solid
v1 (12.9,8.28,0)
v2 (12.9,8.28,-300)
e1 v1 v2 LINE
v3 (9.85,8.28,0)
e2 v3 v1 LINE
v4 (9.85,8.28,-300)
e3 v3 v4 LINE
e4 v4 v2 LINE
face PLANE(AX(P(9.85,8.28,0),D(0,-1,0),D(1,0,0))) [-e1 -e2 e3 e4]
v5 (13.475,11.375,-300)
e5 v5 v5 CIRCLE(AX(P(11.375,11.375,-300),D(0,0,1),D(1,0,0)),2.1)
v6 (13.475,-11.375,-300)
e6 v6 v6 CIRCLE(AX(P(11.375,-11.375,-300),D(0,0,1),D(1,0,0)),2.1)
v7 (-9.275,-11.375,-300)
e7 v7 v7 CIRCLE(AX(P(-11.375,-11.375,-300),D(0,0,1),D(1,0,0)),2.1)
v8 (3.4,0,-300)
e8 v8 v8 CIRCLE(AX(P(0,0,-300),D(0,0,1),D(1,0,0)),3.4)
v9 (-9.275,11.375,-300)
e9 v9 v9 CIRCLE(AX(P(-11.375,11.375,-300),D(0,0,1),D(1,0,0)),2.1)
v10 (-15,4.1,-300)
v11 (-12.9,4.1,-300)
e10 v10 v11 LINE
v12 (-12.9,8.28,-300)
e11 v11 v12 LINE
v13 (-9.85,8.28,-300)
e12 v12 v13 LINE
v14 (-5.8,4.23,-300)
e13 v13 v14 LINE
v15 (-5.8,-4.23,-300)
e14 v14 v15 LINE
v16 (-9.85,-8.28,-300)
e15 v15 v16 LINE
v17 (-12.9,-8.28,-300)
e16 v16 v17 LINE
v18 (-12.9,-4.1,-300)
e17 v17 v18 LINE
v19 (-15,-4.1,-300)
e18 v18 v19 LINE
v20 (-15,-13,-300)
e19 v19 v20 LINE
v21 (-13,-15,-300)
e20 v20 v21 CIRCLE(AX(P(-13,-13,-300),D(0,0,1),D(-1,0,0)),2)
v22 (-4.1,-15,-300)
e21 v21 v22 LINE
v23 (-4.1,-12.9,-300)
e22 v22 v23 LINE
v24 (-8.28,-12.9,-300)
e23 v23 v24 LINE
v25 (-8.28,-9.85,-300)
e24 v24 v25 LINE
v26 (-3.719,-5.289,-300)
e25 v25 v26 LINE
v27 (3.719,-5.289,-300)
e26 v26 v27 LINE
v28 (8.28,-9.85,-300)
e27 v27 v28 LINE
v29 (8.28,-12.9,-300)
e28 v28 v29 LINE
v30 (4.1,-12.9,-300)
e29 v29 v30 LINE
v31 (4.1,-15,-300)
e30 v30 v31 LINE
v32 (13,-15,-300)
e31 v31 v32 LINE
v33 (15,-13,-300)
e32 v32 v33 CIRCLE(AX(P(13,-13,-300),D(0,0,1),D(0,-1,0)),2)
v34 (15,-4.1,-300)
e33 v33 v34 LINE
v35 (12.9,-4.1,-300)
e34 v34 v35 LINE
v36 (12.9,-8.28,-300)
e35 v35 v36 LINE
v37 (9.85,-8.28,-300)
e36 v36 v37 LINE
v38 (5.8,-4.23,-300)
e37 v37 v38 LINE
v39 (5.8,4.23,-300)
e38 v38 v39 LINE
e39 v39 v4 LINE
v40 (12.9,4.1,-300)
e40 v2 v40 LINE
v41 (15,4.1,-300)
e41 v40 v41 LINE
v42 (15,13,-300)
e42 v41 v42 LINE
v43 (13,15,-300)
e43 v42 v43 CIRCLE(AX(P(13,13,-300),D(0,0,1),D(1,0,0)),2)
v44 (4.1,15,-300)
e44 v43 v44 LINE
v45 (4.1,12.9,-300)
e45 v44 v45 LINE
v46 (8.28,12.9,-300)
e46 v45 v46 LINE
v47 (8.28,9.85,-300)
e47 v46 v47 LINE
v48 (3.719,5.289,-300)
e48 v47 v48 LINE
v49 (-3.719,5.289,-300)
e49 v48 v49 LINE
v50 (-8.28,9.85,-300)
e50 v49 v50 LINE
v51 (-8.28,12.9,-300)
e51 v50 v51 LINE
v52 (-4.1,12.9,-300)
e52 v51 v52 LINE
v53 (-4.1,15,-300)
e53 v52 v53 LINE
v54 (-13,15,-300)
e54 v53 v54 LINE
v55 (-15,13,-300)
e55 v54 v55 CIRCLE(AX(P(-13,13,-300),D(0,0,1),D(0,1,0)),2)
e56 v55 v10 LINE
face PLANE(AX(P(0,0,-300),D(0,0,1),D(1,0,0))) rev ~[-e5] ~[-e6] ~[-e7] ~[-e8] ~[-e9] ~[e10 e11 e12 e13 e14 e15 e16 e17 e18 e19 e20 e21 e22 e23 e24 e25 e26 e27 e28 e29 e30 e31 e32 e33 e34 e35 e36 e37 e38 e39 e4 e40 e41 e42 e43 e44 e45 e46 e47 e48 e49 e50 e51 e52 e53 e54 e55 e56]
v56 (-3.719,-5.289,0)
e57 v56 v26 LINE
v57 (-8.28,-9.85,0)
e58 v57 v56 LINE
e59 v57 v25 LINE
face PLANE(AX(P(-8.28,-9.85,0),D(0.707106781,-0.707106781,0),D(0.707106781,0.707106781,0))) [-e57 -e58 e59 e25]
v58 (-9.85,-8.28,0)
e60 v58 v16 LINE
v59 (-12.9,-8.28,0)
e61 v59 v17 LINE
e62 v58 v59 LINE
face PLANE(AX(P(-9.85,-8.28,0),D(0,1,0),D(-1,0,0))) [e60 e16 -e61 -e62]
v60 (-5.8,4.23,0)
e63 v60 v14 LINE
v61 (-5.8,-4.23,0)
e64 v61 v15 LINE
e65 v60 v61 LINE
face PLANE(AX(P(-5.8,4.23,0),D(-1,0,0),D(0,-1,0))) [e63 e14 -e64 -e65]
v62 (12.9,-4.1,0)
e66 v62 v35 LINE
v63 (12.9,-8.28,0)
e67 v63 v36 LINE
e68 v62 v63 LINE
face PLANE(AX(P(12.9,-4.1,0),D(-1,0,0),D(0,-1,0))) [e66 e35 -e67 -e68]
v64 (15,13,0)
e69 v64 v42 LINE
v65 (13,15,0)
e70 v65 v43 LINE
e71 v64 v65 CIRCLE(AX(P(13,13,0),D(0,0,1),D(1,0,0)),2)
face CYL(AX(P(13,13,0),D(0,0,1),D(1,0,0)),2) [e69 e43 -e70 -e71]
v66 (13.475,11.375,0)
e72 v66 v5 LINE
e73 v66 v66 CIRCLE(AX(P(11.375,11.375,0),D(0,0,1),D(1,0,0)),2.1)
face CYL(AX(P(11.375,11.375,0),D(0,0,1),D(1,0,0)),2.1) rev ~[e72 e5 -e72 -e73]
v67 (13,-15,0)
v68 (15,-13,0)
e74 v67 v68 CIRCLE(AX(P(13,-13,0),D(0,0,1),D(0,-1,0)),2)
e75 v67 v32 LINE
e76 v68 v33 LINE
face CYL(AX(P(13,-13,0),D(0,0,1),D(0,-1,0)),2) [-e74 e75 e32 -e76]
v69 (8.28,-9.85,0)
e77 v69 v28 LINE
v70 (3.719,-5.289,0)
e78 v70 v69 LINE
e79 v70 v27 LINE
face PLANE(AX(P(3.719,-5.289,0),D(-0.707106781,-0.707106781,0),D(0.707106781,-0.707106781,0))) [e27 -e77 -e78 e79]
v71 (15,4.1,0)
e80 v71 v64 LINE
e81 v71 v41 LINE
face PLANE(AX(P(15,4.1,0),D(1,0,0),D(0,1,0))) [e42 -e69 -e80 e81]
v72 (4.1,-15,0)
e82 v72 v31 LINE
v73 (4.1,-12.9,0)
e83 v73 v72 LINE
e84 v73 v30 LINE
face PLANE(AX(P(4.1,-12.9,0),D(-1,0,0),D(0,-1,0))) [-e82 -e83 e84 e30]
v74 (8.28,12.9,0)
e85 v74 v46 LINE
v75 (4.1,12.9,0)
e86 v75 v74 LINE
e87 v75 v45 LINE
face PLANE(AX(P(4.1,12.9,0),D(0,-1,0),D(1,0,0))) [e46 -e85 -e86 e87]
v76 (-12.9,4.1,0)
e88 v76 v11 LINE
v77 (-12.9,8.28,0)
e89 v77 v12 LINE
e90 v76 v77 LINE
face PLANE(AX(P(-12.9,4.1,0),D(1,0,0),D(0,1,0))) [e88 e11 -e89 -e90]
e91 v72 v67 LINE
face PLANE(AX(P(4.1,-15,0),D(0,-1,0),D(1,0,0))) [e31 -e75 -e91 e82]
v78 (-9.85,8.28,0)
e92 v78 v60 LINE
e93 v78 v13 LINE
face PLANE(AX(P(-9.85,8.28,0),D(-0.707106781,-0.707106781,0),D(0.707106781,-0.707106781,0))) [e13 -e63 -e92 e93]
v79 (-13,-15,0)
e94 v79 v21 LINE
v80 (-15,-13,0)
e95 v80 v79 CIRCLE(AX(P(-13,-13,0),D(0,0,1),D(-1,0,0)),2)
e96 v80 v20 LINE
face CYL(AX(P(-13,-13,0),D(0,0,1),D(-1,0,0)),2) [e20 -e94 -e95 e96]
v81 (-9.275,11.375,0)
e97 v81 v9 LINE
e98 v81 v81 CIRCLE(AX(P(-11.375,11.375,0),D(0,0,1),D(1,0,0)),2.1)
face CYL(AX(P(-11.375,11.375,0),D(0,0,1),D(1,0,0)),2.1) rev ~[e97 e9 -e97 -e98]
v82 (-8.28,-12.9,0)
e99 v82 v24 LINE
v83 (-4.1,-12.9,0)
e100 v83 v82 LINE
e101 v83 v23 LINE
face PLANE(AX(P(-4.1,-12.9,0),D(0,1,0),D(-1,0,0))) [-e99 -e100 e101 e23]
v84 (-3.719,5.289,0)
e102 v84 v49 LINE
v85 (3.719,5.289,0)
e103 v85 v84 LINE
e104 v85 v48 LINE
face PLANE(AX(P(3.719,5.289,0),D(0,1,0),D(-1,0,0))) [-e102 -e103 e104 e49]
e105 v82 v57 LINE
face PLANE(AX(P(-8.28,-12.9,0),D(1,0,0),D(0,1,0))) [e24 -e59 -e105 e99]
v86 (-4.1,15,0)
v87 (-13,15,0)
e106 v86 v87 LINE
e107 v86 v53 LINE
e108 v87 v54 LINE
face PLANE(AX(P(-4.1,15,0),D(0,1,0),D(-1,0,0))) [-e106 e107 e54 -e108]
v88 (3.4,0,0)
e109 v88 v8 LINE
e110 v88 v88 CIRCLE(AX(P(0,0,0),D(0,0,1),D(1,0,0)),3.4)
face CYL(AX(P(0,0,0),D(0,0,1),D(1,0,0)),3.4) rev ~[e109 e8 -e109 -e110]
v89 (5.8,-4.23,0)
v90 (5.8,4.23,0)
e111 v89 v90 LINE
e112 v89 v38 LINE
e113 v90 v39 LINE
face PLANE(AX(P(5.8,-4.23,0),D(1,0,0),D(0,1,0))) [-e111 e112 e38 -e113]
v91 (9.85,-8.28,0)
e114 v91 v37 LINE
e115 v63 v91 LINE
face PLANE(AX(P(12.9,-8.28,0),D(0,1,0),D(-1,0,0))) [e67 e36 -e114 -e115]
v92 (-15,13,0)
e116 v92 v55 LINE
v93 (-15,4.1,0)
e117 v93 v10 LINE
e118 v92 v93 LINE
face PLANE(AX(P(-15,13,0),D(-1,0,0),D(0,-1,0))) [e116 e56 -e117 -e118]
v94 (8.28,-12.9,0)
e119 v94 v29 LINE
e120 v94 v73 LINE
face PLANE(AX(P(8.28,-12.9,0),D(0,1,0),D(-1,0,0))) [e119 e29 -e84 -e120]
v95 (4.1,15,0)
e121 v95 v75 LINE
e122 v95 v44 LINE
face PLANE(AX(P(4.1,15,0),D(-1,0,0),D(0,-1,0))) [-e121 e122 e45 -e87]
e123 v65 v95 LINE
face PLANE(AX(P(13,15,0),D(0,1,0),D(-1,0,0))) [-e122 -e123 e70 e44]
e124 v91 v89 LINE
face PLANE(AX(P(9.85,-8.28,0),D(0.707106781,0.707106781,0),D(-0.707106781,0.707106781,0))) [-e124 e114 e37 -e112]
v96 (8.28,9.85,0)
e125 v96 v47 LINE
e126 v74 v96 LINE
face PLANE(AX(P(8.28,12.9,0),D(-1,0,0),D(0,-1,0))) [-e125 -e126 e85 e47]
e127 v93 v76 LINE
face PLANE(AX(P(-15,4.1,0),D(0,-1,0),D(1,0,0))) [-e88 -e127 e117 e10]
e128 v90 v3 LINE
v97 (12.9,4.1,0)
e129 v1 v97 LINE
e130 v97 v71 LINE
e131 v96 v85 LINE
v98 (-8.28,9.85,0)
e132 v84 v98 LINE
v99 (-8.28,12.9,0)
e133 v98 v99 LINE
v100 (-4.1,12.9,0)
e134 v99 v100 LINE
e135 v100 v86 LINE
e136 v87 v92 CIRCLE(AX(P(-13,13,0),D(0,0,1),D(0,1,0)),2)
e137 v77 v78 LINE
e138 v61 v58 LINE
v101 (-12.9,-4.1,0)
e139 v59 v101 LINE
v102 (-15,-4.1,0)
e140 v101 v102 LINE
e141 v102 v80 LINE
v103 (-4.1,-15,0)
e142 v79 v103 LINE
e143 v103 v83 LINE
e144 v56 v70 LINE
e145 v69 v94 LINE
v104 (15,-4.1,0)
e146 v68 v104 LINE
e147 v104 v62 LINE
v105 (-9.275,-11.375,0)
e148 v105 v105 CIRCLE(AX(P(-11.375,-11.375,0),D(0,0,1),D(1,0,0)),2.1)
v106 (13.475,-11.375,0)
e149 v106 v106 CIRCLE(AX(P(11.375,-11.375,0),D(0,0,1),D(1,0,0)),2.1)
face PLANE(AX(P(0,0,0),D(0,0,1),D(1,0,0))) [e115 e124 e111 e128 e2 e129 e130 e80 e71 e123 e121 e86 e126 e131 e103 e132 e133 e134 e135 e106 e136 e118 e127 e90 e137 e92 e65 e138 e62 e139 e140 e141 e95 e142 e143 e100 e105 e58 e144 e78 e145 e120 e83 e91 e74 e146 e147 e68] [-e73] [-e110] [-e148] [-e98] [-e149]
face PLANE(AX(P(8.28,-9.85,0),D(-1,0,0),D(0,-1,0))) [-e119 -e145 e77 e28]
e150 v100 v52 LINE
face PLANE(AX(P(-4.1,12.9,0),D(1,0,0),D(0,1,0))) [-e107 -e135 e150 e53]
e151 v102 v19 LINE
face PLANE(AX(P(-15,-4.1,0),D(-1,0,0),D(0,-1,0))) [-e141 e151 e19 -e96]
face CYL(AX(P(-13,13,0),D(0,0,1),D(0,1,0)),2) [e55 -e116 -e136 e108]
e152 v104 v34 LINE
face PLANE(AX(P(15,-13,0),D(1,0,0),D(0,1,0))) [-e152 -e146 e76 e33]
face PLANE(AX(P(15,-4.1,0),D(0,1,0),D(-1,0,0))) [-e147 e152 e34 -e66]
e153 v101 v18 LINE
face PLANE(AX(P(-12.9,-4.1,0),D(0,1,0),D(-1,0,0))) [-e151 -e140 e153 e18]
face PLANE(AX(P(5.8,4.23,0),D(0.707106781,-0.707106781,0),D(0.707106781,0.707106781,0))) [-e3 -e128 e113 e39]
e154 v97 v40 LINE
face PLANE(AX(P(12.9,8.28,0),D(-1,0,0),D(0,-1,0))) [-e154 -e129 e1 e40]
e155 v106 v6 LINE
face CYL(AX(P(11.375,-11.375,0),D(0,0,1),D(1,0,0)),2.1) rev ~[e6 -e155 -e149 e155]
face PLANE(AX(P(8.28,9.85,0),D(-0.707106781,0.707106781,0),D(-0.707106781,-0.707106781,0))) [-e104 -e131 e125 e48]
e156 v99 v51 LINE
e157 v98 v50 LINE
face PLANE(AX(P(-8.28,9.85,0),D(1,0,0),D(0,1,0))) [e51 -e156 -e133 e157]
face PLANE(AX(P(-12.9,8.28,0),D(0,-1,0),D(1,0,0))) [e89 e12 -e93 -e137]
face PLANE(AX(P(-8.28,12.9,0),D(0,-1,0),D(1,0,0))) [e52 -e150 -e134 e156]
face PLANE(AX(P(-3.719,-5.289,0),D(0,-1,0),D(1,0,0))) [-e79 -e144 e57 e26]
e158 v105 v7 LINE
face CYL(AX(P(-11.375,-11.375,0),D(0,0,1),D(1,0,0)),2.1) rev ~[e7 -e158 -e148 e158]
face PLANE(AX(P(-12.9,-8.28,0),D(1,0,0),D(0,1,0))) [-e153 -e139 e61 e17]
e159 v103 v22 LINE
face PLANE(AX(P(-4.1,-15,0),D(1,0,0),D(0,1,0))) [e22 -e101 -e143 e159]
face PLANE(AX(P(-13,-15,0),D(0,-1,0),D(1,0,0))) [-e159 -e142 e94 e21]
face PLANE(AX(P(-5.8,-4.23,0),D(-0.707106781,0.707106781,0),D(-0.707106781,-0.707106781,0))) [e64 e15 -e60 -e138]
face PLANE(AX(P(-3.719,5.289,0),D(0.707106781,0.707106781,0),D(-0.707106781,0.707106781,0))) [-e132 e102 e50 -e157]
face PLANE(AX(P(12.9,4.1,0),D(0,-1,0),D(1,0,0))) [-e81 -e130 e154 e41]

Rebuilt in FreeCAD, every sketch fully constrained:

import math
import FreeCAD as App
import Part
import Sketcher

doc = App.newDocument("Part")
params = doc.addObject("Spreadsheet::Sheet", "Params")
for row, (alias, value) in enumerate([
    ("sketch1_radius", "2 mm"),
    ("sketch1_diameter", "4.2 mm"),
    ("sketch1_diameter2", "6.8 mm"),
    ("sketch1_width", "2.1 mm"),
    ("sketch1_width2", "8.9 mm"),
    ("pad1_length", "300 mm"),
], start=1):
    params.set(f"A{row}", alias)
    params.set(f"B{row}", "=" + value)
    params.setAlias(f"B{row}", alias)

body = doc.addObject("PartDesign::Body", "Body")

# Sketch on XY plane
sketch1 = body.newObject("Sketcher::SketchObject", "Sketch")
sketch1.AttachmentSupport = (doc.getObject("XY_Plane"), [""])
sketch1.MapMode = "FlatFace"
sketch1.addGeometry([
    Part.LineSegment(App.Vector(-15, 13, 0), App.Vector(-15, 4.1, 0)),  # 0
    Part.LineSegment(App.Vector(-15, 4.1, 0), App.Vector(-12.9, 4.1, 0)),  # 1
    Part.LineSegment(App.Vector(-12.9, 4.1, 0), App.Vector(-12.9, 8.3, 0)),  # 2
    Part.LineSegment(App.Vector(-12.9, 8.3, 0), App.Vector(-9.8, 8.3, 0)),  # 3
    Part.LineSegment(App.Vector(-9.8, 8.3, 0), App.Vector(-5.8, 4.2, 0)),  # 4
    Part.LineSegment(App.Vector(-5.8, 4.2, 0), App.Vector(-5.8, -4.2, 0)),  # 5
    Part.LineSegment(App.Vector(-5.8, -4.2, 0), App.Vector(-9.8, -8.3, 0)),  # 6
    Part.LineSegment(App.Vector(-9.8, -8.3, 0), App.Vector(-12.9, -8.3, 0)),  # 7
    Part.LineSegment(App.Vector(-12.9, -8.3, 0), App.Vector(-12.9, -4.1, 0)),  # 8
    Part.LineSegment(App.Vector(-12.9, -4.1, 0), App.Vector(-15, -4.1, 0)),  # 9
    Part.LineSegment(App.Vector(-15, -4.1, 0), App.Vector(-15, -13, 0)),  # 10
    Part.ArcOfCircle(Part.Circle(App.Vector(-13, -13, 0), App.Vector(0, 0, 1), 2), math.radians(180), math.radians(270)),  # 11
    Part.LineSegment(App.Vector(-13, -15, 0), App.Vector(-4.1, -15, 0)),  # 12
    Part.LineSegment(App.Vector(-4.1, -15, 0), App.Vector(-4.1, -12.9, 0)),  # 13
    Part.LineSegment(App.Vector(-4.1, -12.9, 0), App.Vector(-8.3, -12.9, 0)),  # 14
    Part.LineSegment(App.Vector(-8.3, -12.9, 0), App.Vector(-8.3, -9.8, 0)),  # 15
    Part.LineSegment(App.Vector(-8.3, -9.8, 0), App.Vector(-3.7, -5.3, 0)),  # 16
    Part.LineSegment(App.Vector(-3.7, -5.3, 0), App.Vector(3.7, -5.3, 0)),  # 17
    Part.LineSegment(App.Vector(3.7, -5.3, 0), App.Vector(8.3, -9.8, 0)),  # 18
    Part.LineSegment(App.Vector(8.3, -9.8, 0), App.Vector(8.3, -12.9, 0)),  # 19
    Part.LineSegment(App.Vector(8.3, -12.9, 0), App.Vector(4.1, -12.9, 0)),  # 20
    Part.LineSegment(App.Vector(4.1, -12.9, 0), App.Vector(4.1, -15, 0)),  # 21
    Part.LineSegment(App.Vector(4.1, -15, 0), App.Vector(13, -15, 0)),  # 22
    Part.ArcOfCircle(Part.Circle(App.Vector(13, -13, 0), App.Vector(0, 0, 1), 2), math.radians(-90), math.radians(0)),  # 23
    Part.LineSegment(App.Vector(15, -13, 0), App.Vector(15, -4.1, 0)),  # 24
    Part.LineSegment(App.Vector(15, -4.1, 0), App.Vector(12.9, -4.1, 0)),  # 25
    Part.LineSegment(App.Vector(12.9, -4.1, 0), App.Vector(12.9, -8.3, 0)),  # 26
    Part.LineSegment(App.Vector(12.9, -8.3, 0), App.Vector(9.8, -8.3, 0)),  # 27
    Part.LineSegment(App.Vector(9.8, -8.3, 0), App.Vector(5.8, -4.2, 0)),  # 28
    Part.LineSegment(App.Vector(5.8, -4.2, 0), App.Vector(5.8, 4.2, 0)),  # 29
    Part.LineSegment(App.Vector(5.8, 4.2, 0), App.Vector(9.8, 8.3, 0)),  # 30
    Part.LineSegment(App.Vector(9.8, 8.3, 0), App.Vector(12.9, 8.3, 0)),  # 31
    Part.LineSegment(App.Vector(12.9, 8.3, 0), App.Vector(12.9, 4.1, 0)),  # 32
    Part.LineSegment(App.Vector(12.9, 4.1, 0), App.Vector(15, 4.1, 0)),  # 33
    Part.LineSegment(App.Vector(15, 4.1, 0), App.Vector(15, 13, 0)),  # 34
    Part.ArcOfCircle(Part.Circle(App.Vector(13, 13, 0), App.Vector(0, 0, 1), 2), math.radians(0), math.radians(90)),  # 35
    Part.LineSegment(App.Vector(13, 15, 0), App.Vector(4.1, 15, 0)),  # 36
    Part.LineSegment(App.Vector(4.1, 15, 0), App.Vector(4.1, 12.9, 0)),  # 37
    Part.LineSegment(App.Vector(4.1, 12.9, 0), App.Vector(8.3, 12.9, 0)),  # 38
    Part.LineSegment(App.Vector(8.3, 12.9, 0), App.Vector(8.3, 9.8, 0)),  # 39
    Part.LineSegment(App.Vector(8.3, 9.8, 0), App.Vector(3.7, 5.3, 0)),  # 40
    Part.LineSegment(App.Vector(3.7, 5.3, 0), App.Vector(-3.7, 5.3, 0)),  # 41
    Part.LineSegment(App.Vector(-3.7, 5.3, 0), App.Vector(-8.3, 9.8, 0)),  # 42
    Part.LineSegment(App.Vector(-8.3, 9.8, 0), App.Vector(-8.3, 12.9, 0)),  # 43
    Part.LineSegment(App.Vector(-8.3, 12.9, 0), App.Vector(-4.1, 12.9, 0)),  # 44
    Part.LineSegment(App.Vector(-4.1, 12.9, 0), App.Vector(-4.1, 15, 0)),  # 45
    Part.LineSegment(App.Vector(-4.1, 15, 0), App.Vector(-13, 15, 0)),  # 46
    Part.ArcOfCircle(Part.Circle(App.Vector(-13, 13, 0), App.Vector(0, 0, 1), 2), math.radians(90), math.radians(180)),  # 47
    Part.Circle(App.Vector(-11.4, -11.4, 0), App.Vector(0, 0, 1), 2.1),  # 48
    Part.Circle(App.Vector(11.4, -11.4, 0), App.Vector(0, 0, 1), 2.1),  # 49
    Part.Circle(App.Vector(-11.4, 11.4, 0), App.Vector(0, 0, 1), 2.1),  # 50
    Part.Circle(App.Vector(0, 0, 0), App.Vector(0, 0, 1), 3.4),  # 51
    Part.Circle(App.Vector(11.4, 11.4, 0), App.Vector(0, 0, 1), 2.1),  # 52
], False)
sketch1.addConstraint([
    Sketcher.Constraint("Coincident", 0, 2, 1, 1),
    Sketcher.Constraint("Coincident", 1, 2, 2, 1),
    Sketcher.Constraint("Coincident", 2, 2, 3, 1),
    Sketcher.Constraint("Coincident", 3, 2, 4, 1),
    Sketcher.Constraint("Coincident", 4, 2, 5, 1),
    Sketcher.Constraint("Coincident", 5, 2, 6, 1),
    Sketcher.Constraint("Coincident", 6, 2, 7, 1),
    Sketcher.Constraint("Coincident", 7, 2, 8, 1),
    Sketcher.Constraint("Coincident", 8, 2, 9, 1),
    Sketcher.Constraint("Coincident", 9, 2, 10, 1),
    Sketcher.Constraint("Tangent", 10, 2, 11, 1),
    Sketcher.Constraint("Tangent", 11, 2, 12, 1),
    Sketcher.Constraint("Coincident", 12, 2, 13, 1),
    Sketcher.Constraint("Coincident", 13, 2, 14, 1),
    Sketcher.Constraint("Coincident", 14, 2, 15, 1),
    Sketcher.Constraint("Coincident", 15, 2, 16, 1),
    Sketcher.Constraint("Coincident", 16, 2, 17, 1),
    Sketcher.Constraint("Coincident", 17, 2, 18, 1),
    Sketcher.Constraint("Coincident", 18, 2, 19, 1),
    Sketcher.Constraint("Coincident", 19, 2, 20, 1),
    Sketcher.Constraint("Coincident", 20, 2, 21, 1),
    Sketcher.Constraint("Coincident", 21, 2, 22, 1),
    Sketcher.Constraint("Tangent", 22, 2, 23, 1),
    Sketcher.Constraint("Tangent", 23, 2, 24, 1),
    Sketcher.Constraint("Coincident", 24, 2, 25, 1),
    Sketcher.Constraint("Coincident", 25, 2, 26, 1),
    Sketcher.Constraint("Coincident", 26, 2, 27, 1),
    Sketcher.Constraint("Coincident", 27, 2, 28, 1),
    Sketcher.Constraint("Coincident", 28, 2, 29, 1),
    Sketcher.Constraint("Coincident", 29, 2, 30, 1),
    Sketcher.Constraint("Coincident", 30, 2, 31, 1),
    Sketcher.Constraint("Coincident", 31, 2, 32, 1),
    Sketcher.Constraint("Coincident", 32, 2, 33, 1),
    Sketcher.Constraint("Coincident", 33, 2, 34, 1),
    Sketcher.Constraint("Tangent", 34, 2, 35, 1),
    Sketcher.Constraint("Tangent", 35, 2, 36, 1),
    Sketcher.Constraint("Coincident", 36, 2, 37, 1),
    Sketcher.Constraint("Coincident", 37, 2, 38, 1),
    Sketcher.Constraint("Coincident", 38, 2, 39, 1),
    Sketcher.Constraint("Coincident", 39, 2, 40, 1),
    Sketcher.Constraint("Coincident", 40, 2, 41, 1),
    Sketcher.Constraint("Coincident", 41, 2, 42, 1),
    Sketcher.Constraint("Coincident", 42, 2, 43, 1),
    Sketcher.Constraint("Coincident", 43, 2, 44, 1),
    Sketcher.Constraint("Coincident", 44, 2, 45, 1),
    Sketcher.Constraint("Coincident", 45, 2, 46, 1),
    Sketcher.Constraint("Tangent", 46, 2, 47, 1),
    Sketcher.Constraint("Tangent", 47, 2, 0, 1),
    Sketcher.Constraint("Vertical", 0),
    Sketcher.Constraint("Horizontal", 1),
    Sketcher.Constraint("Vertical", 2),
    Sketcher.Constraint("Horizontal", 3),
    Sketcher.Constraint("Vertical", 5),
    Sketcher.Constraint("Horizontal", 7),
    Sketcher.Constraint("Vertical", 8),
    Sketcher.Constraint("Horizontal", 9),
    Sketcher.Constraint("Vertical", 10),
    Sketcher.Constraint("Horizontal", 12),
    Sketcher.Constraint("Vertical", 13),
    Sketcher.Constraint("Horizontal", 14),
    Sketcher.Constraint("Vertical", 15),
    Sketcher.Constraint("Horizontal", 17),
    Sketcher.Constraint("Vertical", 19),
    Sketcher.Constraint("Horizontal", 20),
    Sketcher.Constraint("Vertical", 21),
    Sketcher.Constraint("Horizontal", 22),
    Sketcher.Constraint("Vertical", 24),
    Sketcher.Constraint("Horizontal", 25),
    Sketcher.Constraint("Vertical", 26),
    Sketcher.Constraint("Horizontal", 27),
    Sketcher.Constraint("Vertical", 29),
    Sketcher.Constraint("Horizontal", 31),
    Sketcher.Constraint("Vertical", 32),
    Sketcher.Constraint("Horizontal", 33),
    Sketcher.Constraint("Vertical", 34),
    Sketcher.Constraint("Horizontal", 36),
    Sketcher.Constraint("Vertical", 37),
    Sketcher.Constraint("Horizontal", 38),
    Sketcher.Constraint("Vertical", 39),
    Sketcher.Constraint("Horizontal", 41),
    Sketcher.Constraint("Vertical", 43),
    Sketcher.Constraint("Horizontal", 44),
    Sketcher.Constraint("Vertical", 45),
    Sketcher.Constraint("Horizontal", 46),
    Sketcher.Constraint("Coincident", 51, 3, -1, 1),
    Sketcher.Constraint("Equal", 11, 23),
    Sketcher.Constraint("Equal", 23, 35),
    Sketcher.Constraint("Equal", 35, 47),
    Sketcher.Constraint("Equal", 48, 49),
    Sketcher.Constraint("Equal", 49, 50),
    Sketcher.Constraint("Equal", 50, 52),
    Sketcher.Constraint("Symmetric", 11, 3, 35, 3, -1, 1),
    Sketcher.Constraint("Symmetric", 23, 3, 47, 3, -1, 1),
    Sketcher.Constraint("Symmetric", 49, 3, 50, 3, -1, 1),
    Sketcher.Constraint("Symmetric", 48, 3, 52, 3, -1, 1),
    Sketcher.Constraint("Symmetric", 1, 2, 25, 2, -1, 1),
    Sketcher.Constraint("Symmetric", 3, 2, 27, 2, -1, 1),
    Sketcher.Constraint("Symmetric", 4, 2, 28, 2, -1, 1),
    Sketcher.Constraint("Symmetric", 6, 2, 30, 2, -1, 1),
    Sketcher.Constraint("Symmetric", 8, 2, 32, 2, -1, 1),
    Sketcher.Constraint("Symmetric", 13, 2, 37, 2, -1, 1),
    Sketcher.Constraint("Symmetric", 15, 2, 39, 2, -1, 1),
    Sketcher.Constraint("Symmetric", 16, 2, 40, 2, -1, 1),
    Sketcher.Constraint("Symmetric", 18, 2, 42, 2, -1, 1),
    Sketcher.Constraint("Symmetric", 20, 2, 44, 2, -1, 1),
    Sketcher.Constraint("Symmetric", 11, 3, 23, 3, -2),
    Sketcher.Constraint("Symmetric", 48, 3, 49, 3, -2),
    Sketcher.Constraint("Symmetric", 15, 2, 18, 2, -2),
    Sketcher.Constraint("Symmetric", 13, 2, 20, 2, -2),
    Sketcher.Constraint("Symmetric", 8, 2, 25, 2, -2),
    Sketcher.Constraint("Symmetric", 6, 2, 27, 2, -2),
    Sketcher.Constraint("Perpendicular", 4, 6),
    Sketcher.Constraint("Parallel", 6, 16),
    Sketcher.Constraint("Perpendicular", 16, 18),
    Sketcher.Constraint("Perpendicular", 28, 30),
    Sketcher.Constraint("Perpendicular", 40, 42),
    Sketcher.Constraint("Horizontal", 5, 2, 28, 2),
    Sketcher.Constraint("Equal", 46, 0),
    Sketcher.Constraint("Equal", 44, 2),
    Sketcher.Constraint("Equal", 33, 13),
    Sketcher.Constraint("Equal", 31, 15),
    Sketcher.Constraint("Radius", 11, 2.0),
    Sketcher.Constraint("Diameter", 48, 4.2),
    Sketcher.Constraint("Diameter", 51, 6.8),
    Sketcher.Constraint("DistanceX", 1, 1, 1, 2, 2.1),
    Sketcher.Constraint("DistanceX", 12, 1, 12, 2, 8.9),
    Sketcher.Constraint("DistanceX", 11, 3, -1, 1, 13.0),
    Sketcher.Constraint("DistanceY", 11, 3, -1, 1, 13.0),
    Sketcher.Constraint("DistanceX", 3, 1, 3, 2, 3.05),
    Sketcher.Constraint("DistanceX", 14, 2, 14, 1, 4.18),
    Sketcher.Constraint("DistanceY", 5, 2, 5, 1, 8.46),
    Sketcher.Constraint("DistanceX", 17, 1, 17, 2, 7.438),
    Sketcher.Constraint("DistanceX", 48, 3, 49, 3, 22.75),
    Sketcher.Constraint("DistanceY", 48, 3, 50, 3, 22.75),
])
sketch1.setExpression("Constraints[121]", "Params.sketch1_radius")
sketch1.setExpression("Constraints[122]", "Params.sketch1_diameter")
sketch1.setExpression("Constraints[123]", "Params.sketch1_diameter2")
sketch1.setExpression("Constraints[124]", "Params.sketch1_width")
sketch1.setExpression("Constraints[125]", "Params.sketch1_width2")
pad1 = body.newObject("PartDesign::Pad", "Pad")
pad1.Profile = sketch1
pad1.setExpression("Length", "Params.pad1_length")
pad1.Reversed = True

doc.recompute()
